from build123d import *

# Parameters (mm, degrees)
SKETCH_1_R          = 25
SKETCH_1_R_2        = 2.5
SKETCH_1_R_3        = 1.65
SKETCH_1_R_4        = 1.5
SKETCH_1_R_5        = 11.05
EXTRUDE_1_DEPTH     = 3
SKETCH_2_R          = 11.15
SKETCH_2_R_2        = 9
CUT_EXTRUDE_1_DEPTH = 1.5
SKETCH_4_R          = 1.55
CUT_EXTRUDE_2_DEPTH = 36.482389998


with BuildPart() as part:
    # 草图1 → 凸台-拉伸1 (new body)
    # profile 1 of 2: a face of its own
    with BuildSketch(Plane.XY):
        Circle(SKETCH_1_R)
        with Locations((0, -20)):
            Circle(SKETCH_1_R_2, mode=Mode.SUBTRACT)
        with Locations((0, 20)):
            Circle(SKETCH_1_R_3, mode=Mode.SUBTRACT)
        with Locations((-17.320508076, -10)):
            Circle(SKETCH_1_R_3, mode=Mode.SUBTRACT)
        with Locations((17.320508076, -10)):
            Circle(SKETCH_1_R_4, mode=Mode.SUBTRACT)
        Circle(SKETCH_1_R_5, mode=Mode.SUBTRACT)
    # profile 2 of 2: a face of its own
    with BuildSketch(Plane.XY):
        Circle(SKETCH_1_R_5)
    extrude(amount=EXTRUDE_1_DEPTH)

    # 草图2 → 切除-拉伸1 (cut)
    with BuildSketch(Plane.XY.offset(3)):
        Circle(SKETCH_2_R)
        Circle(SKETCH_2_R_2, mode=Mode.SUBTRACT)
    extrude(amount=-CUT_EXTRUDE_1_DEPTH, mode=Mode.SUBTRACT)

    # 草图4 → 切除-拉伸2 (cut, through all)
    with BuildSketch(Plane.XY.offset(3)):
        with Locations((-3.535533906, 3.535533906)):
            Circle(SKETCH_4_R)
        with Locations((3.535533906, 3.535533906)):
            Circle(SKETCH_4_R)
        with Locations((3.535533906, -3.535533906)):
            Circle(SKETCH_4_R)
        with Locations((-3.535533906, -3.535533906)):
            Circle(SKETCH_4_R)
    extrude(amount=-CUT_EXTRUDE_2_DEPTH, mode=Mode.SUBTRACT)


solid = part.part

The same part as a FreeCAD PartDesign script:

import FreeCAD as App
import Part
import Sketcher

V = App.Vector

doc = App.newDocument("Part")
body = doc.addObject("PartDesign::Body", "Body")

sketch1 = doc.addObject("Sketcher::SketchObject", "Sketch")
body.addObject(sketch1)
sketch1.AttachmentSupport = (doc.XY_Plane, [""])
sketch1.MapMode = "FlatFace"
sketch1.addGeometry(Part.Circle(V(0, 0, 0), V(0, 0, 1), 25), False)
sketch1.addGeometry(Part.Circle(V(-17.3, -10, 0), V(0, 0, 1), 1.6), False)
sketch1.addGeometry(Part.Circle(V(0, -20, 0), V(0, 0, 1), 2.5), False)
sketch1.addGeometry(Part.Circle(V(17.3, -10, 0), V(0, 0, 1), 1.5), False)
sketch1.addGeometry(Part.Circle(V(0, 20, 0), V(0, 0, 1), 1.6), False)
sketch1.addConstraint(Sketcher.Constraint("Coincident", 0, 3, -1, 1))
sketch1.addConstraint(Sketcher.Constraint("Equal", 1, 4))
sketch1.addConstraint(Sketcher.Constraint("Symmetric", 2, 3, 4, 3, -1, 1))
sketch1.addConstraint(Sketcher.Constraint("Symmetric", 1, 3, 3, 3, -2))
sketch1.addConstraint(Sketcher.Constraint("PointOnObject", 2, 3, -2))
sketch1.addConstraint(Sketcher.Constraint("Diameter", 0, 50.0))
sketch1.addConstraint(Sketcher.Constraint("Diameter", 2, 5.0))
sketch1.addConstraint(Sketcher.Constraint("Diameter", 3, 3.0))
sketch1.addConstraint(Sketcher.Constraint("Diameter", 1, 3.3))
sketch1.addConstraint(Sketcher.Constraint("DistanceY", 1, 3, -1, 1, 10.0))
sketch1.addConstraint(Sketcher.Constraint("DistanceY", 2, 3, -1, 1, 20.0))
sketch1.addConstraint(Sketcher.Constraint("DistanceX", 1, 3, -1, 1, 17.320508))
pad1 = doc.addObject("PartDesign::Pad", "Pad")
body.addObject(pad1)
pad1.Profile = sketch1
pad1.Length = 3

sketch2 = doc.addObject("Sketcher::SketchObject", "Sketch001")
body.addObject(sketch2)
sketch2.AttachmentSupport = (doc.XY_Plane, [""])
sketch2.MapMode = "FlatFace"
sketch2.AttachmentOffset = App.Placement(V(0, 0, 3), App.Rotation())
sketch2.addGeometry(Part.Circle(V(0, 0, 0), V(0, 0, 1), 11), False)
sketch2.addGeometry(Part.Circle(V(0, 0, 0), V(0, 0, 1), 9), False)
sketch2.addConstraint(Sketcher.Constraint("Coincident", 0, 3, -1, 1))
sketch2.addConstraint(Sketcher.Constraint("Coincident", 1, 3, -1, 1))
sketch2.addConstraint(Sketcher.Constraint("Diameter", 1, 18.0))
sketch2.addConstraint(Sketcher.Constraint("Diameter", 0, 22.3))
pocket1 = doc.addObject("PartDesign::Pocket", "Pocket")
body.addObject(pocket1)
pocket1.Profile = sketch2
pocket1.Length = 1.5

sketch3 = doc.addObject("Sketcher::SketchObject", "Sketch002")
body.addObject(sketch3)
sketch3.AttachmentSupport = (doc.XY_Plane, [""])
sketch3.MapMode = "FlatFace"
sketch3.AttachmentOffset = App.Placement(V(0, 0, 3), App.Rotation())
sketch3.addGeometry(Part.Circle(V(-3.5, 3.5, 0), V(0, 0, 1), 1.6), False)
sketch3.addGeometry(Part.Circle(V(3.5, 3.5, 0), V(0, 0, 1), 1.6), False)
sketch3.addGeometry(Part.Circle(V(3.5, -3.5, 0), V(0, 0, 1), 1.6), False)
sketch3.addGeometry(Part.Circle(V(-3.5, -3.5, 0), V(0, 0, 1), 1.6), False)
sketch3.addConstraint(Sketcher.Constraint("Equal", 0, 1))
sketch3.addConstraint(Sketcher.Constraint("Equal", 1, 2))
sketch3.addConstraint(Sketcher.Constraint("Equal", 2, 3))
sketch3.addConstraint(Sketcher.Constraint("Symmetric", 0, 3, 2, 3, -1, 1))
sketch3.addConstraint(Sketcher.Constraint("Symmetric", 1, 3, 3, 3, -1, 1))
sketch3.addConstraint(Sketcher.Constraint("Symmetric", 0, 3, 1, 3, -2))
sketch3.addConstraint(Sketcher.Constraint("Diameter", 0, 3.1))
sketch3.addConstraint(Sketcher.Constraint("DistanceX", 0, 3, -1, 1, 3.535534))
sketch3.addConstraint(Sketcher.Constraint("DistanceY", -1, 1, 0, 3, 3.535534))
pocket2 = doc.addObject("PartDesign::Pocket", "Pocket001")
body.addObject(pocket2)
pocket2.Profile = sketch3
pocket2.Type = "ThroughAll"

doc.recompute()
